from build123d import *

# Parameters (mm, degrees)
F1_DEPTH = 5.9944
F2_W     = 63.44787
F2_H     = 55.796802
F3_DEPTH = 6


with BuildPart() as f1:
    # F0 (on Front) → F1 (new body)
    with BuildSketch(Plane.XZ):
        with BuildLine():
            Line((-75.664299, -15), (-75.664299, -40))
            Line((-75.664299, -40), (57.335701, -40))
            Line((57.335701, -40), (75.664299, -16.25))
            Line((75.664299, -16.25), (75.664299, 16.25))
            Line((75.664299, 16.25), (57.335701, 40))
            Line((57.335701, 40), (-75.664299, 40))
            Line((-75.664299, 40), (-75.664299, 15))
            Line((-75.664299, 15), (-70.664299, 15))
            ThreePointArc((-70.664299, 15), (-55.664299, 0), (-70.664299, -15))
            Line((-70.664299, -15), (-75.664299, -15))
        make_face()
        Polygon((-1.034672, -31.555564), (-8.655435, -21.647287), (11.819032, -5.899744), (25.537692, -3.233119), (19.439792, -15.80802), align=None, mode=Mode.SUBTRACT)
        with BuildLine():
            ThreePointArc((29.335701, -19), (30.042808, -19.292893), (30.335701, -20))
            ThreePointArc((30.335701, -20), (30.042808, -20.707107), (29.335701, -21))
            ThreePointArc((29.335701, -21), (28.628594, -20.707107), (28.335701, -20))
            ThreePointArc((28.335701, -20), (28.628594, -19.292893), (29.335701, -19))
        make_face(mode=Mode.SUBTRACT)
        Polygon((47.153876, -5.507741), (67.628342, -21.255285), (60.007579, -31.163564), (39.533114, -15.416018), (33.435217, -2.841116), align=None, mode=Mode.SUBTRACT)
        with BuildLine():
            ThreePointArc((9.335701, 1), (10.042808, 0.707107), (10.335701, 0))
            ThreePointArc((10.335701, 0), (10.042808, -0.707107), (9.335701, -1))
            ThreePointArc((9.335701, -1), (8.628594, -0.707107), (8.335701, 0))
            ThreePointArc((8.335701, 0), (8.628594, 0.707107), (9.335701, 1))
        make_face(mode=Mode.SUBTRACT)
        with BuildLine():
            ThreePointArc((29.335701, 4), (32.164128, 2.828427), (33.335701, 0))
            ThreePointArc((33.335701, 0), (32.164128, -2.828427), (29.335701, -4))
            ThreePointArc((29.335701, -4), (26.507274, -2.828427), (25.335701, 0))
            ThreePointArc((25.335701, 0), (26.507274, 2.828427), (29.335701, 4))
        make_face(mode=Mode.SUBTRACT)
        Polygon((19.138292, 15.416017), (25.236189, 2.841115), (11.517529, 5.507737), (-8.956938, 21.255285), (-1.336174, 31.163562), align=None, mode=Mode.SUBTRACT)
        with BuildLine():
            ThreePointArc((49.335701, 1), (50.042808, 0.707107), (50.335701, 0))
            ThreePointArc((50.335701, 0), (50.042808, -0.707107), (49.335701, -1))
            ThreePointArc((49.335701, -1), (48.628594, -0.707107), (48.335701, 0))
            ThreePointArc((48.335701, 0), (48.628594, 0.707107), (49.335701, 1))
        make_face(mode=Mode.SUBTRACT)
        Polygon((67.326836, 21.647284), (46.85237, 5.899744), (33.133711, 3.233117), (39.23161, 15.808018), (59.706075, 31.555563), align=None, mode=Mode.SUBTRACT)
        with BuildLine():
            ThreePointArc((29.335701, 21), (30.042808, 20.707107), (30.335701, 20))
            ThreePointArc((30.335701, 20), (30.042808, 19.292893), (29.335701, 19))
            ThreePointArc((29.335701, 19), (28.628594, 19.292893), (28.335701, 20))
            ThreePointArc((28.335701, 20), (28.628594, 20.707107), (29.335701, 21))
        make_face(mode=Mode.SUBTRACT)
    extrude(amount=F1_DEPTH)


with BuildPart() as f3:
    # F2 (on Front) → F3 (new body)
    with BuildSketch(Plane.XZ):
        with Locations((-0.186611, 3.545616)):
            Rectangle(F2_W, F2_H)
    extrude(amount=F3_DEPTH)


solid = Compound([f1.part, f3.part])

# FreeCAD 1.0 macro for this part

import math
import FreeCAD as App
import Part
import Sketcher
from FreeCAD import Vector


def add_polygon(sketch, points):
    """Adds a closed chain of lines whose ends are joined by coincident constraints."""
    first, n = sketch.GeometryCount, len(points)
    for a, b in zip(points, points[1:] + points[:1]):
        sketch.addGeometry(Part.LineSegment(App.Vector(*a, 0), App.Vector(*b, 0)), False)
    for i in range(n):
        sketch.addConstraint(Sketcher.Constraint("Coincident", first + i, 2, first + (i + 1) % n, 1))

doc = App.newDocument("Part")
body = doc.addObject("PartDesign::Body", "Body")

# Sketch on XZ plane
sketch1 = doc.addObject("Sketcher::SketchObject", "Sketch")
body.addObject(sketch1)
sketch1.AttachmentSupport = (doc.XZ_Plane, [""])
sketch1.MapMode = "FlatFace"
sketch1.addGeometry(Part.LineSegment(Vector(-75.7, -15, 0), Vector(-75.7, -40, 0)), False)  # 0
sketch1.addGeometry(Part.LineSegment(Vector(-75.7, -40, 0), Vector(57.3, -40, 0)), False)  # 1
sketch1.addGeometry(Part.LineSegment(Vector(57.3, -40, 0), Vector(75.7, -16.2, 0)), False)  # 2
sketch1.addGeometry(Part.LineSegment(Vector(75.7, -16.2, 0), Vector(75.7, 16.2, 0)), False)  # 3
sketch1.addGeometry(Part.LineSegment(Vector(75.7, 16.2, 0), Vector(57.3, 40, 0)), False)  # 4
sketch1.addGeometry(Part.LineSegment(Vector(57.3, 40, 0), Vector(-75.7, 40, 0)), False)  # 5
sketch1.addGeometry(Part.LineSegment(Vector(-75.7, 40, 0), Vector(-75.7, 15, 0)), False)  # 6
sketch1.addGeometry(Part.LineSegment(Vector(-75.7, 15, 0), Vector(-70.7, 15, 0)), False)  # 7
sketch1.addGeometry(Part.ArcOfCircle(Part.Circle(Vector(-70.7, 0, 0), Vector(0, 0, 1), 15), math.radians(-90), math.radians(90)), False)  # 8
sketch1.addGeometry(Part.LineSegment(Vector(-70.7, -15, 0), Vector(-75.7, -15, 0)), False)  # 9
add_polygon(sketch1, [(19.4, -15.8), (-1, -31.6), (-8.7, -21.6), (11.8, -5.9), (25.5, -3.2)])  # lines 10-14
sketch1.addGeometry(Part.ArcOfCircle(Part.Circle(Vector(29.3, -20, 0), Vector(0, 0, 1), 1), math.radians(90), math.radians(180)), False)  # 15
sketch1.addGeometry(Part.ArcOfCircle(Part.Circle(Vector(29.3, -20, 0), Vector(0, 0, 1), 1), math.radians(0), math.radians(90)), False)  # 16
sketch1.addGeometry(Part.ArcOfCircle(Part.Circle(Vector(29.3, -20, 0), Vector(0, 0, 1), 1), math.radians(-90), math.radians(0)), False)  # 17
sketch1.addGeometry(Part.ArcOfCircle(Part.Circle(Vector(29.3, -20, 0), Vector(0, 0, 1), 1), math.radians(180), math.radians(270)), False)  # 18
add_polygon(sketch1, [(33.4, -2.8), (47.2, -5.5), (67.6, -21.3), (60, -31.2), (39.5, -15.4)])  # lines 19-23
sketch1.addGeometry(Part.ArcOfCircle(Part.Circle(Vector(9.3, 0, 0), Vector(0, 0, 1), 1), math.radians(90), math.radians(180)), False)  # 24
sketch1.addGeometry(Part.ArcOfCircle(Part.Circle(Vector(9.3, 0, 0), Vector(0, 0, 1), 1), math.radians(0), math.radians(90)), False)  # 25
sketch1.addGeometry(Part.ArcOfCircle(Part.Circle(Vector(9.3, 0, 0), Vector(0, 0, 1), 1), math.radians(-90), math.radians(0)), False)  # 26
sketch1.addGeometry(Part.ArcOfCircle(Part.Circle(Vector(9.3, 0, 0), Vector(0, 0, 1), 1), math.radians(180), math.radians(270)), False)  # 27
sketch1.addGeometry(Part.ArcOfCircle(Part.Circle(Vector(29.3, 0, 0), Vector(0, 0, 1), 4), math.radians(90), math.radians(180)), False)  # 28
sketch1.addGeometry(Part.ArcOfCircle(Part.Circle(Vector(29.3, 0, 0), Vector(0, 0, 1), 4), math.radians(0), math.radians(90)), False)  # 29
sketch1.addGeometry(Part.ArcOfCircle(Part.Circle(Vector(29.3, 0, 0), Vector(0, 0, 1), 4), math.radians(-90), math.radians(0)), False)  # 30
sketch1.addGeometry(Part.ArcOfCircle(Part.Circle(Vector(29.3, 0, 0), Vector(0, 0, 1), 4), math.radians(-180), math.radians(-90)), False)  # 31
add_polygon(sketch1, [(-1.3, 31.2), (19.1, 15.4), (25.2, 2.8), (11.5, 5.5), (-9, 21.3)])  # lines 32-36
sketch1.addGeometry(Part.ArcOfCircle(Part.Circle(Vector(29.3, 20, 0), Vector(0, 0, 1), 1), math.radians(90), math.radians(180)), False)  # 37
sketch1.addGeometry(Part.ArcOfCircle(Part.Circle(Vector(29.3, 20, 0), Vector(0, 0, 1), 1), math.radians(0), math.radians(90)), False)  # 38
sketch1.addGeometry(Part.ArcOfCircle(Part.Circle(Vector(29.3, 20, 0), Vector(0, 0, 1), 1), math.radians(-90), math.radians(0)), False)  # 39
sketch1.addGeometry(Part.ArcOfCircle(Part.Circle(Vector(29.3, 20, 0), Vector(0, 0, 1), 1), math.radians(180), math.radians(270)), False)  # 40
sketch1.addGeometry(Part.ArcOfCircle(Part.Circle(Vector(49.3, 0, 0), Vector(0, 0, 1), 1), math.radians(90), math.radians(180)), False)  # 41
sketch1.addGeometry(Part.ArcOfCircle(Part.Circle(Vector(49.3, 0, 0), Vector(0, 0, 1), 1), math.radians(0), math.radians(90)), False)  # 42
sketch1.addGeometry(Part.ArcOfCircle(Part.Circle(Vector(49.3, 0, 0), Vector(0, 0, 1), 1), math.radians(-90), math.radians(0)), False)  # 43
sketch1.addGeometry(Part.ArcOfCircle(Part.Circle(Vector(49.3, 0, 0), Vector(0, 0, 1), 1), math.radians(180), math.radians(270)), False)  # 44
add_polygon(sketch1, [(59.7, 31.6), (67.3, 21.6), (46.9, 5.9), (33.1, 3.2), (39.2, 15.8)])  # lines 45-49
sketch1.addConstraint([
    Sketcher.Constraint("Coincident", 0, 2, 1, 1),
    Sketcher.Constraint("Coincident", 1, 2, 2, 1),
    Sketcher.Constraint("Coincident", 2, 2, 3, 1),
    Sketcher.Constraint("Coincident", 3, 2, 4, 1),
    Sketcher.Constraint("Coincident", 4, 2, 5, 1),
    Sketcher.Constraint("Coincident", 5, 2, 6, 1),
    Sketcher.Constraint("Coincident", 6, 2, 7, 1),
    Sketcher.Constraint("Tangent", 7, 2, 8, 2),
    Sketcher.Constraint("Tangent", 8, 1, 9, 1),
    Sketcher.Constraint("Coincident", 9, 2, 0, 1),
    Sketcher.Constraint("Tangent", 15, 1, 16, 2),
    Sketcher.Constraint("Tangent", 16, 1, 17, 2),
    Sketcher.Constraint("Tangent", 17, 1, 18, 2),
    Sketcher.Constraint("Tangent", 18, 1, 15, 2),
    Sketcher.Constraint("Tangent", 24, 1, 25, 2),
    Sketcher.Constraint("Tangent", 25, 1, 26, 2),
    Sketcher.Constraint("Tangent", 26, 1, 27, 2),
    Sketcher.Constraint("Tangent", 27, 1, 24, 2),
    Sketcher.Constraint("Tangent", 28, 1, 29, 2),
    Sketcher.Constraint("Tangent", 29, 1, 30, 2),
    Sketcher.Constraint("Tangent", 30, 1, 31, 2),
    Sketcher.Constraint("Tangent", 31, 1, 28, 2),
    Sketcher.Constraint("Tangent", 37, 1, 38, 2),
    Sketcher.Constraint("Tangent", 38, 1, 39, 2),
    Sketcher.Constraint("Tangent", 39, 1, 40, 2),
    Sketcher.Constraint("Tangent", 40, 1, 37, 2),
    Sketcher.Constraint("Tangent", 41, 1, 42, 2),
    Sketcher.Constraint("Tangent", 42, 1, 43, 2),
    Sketcher.Constraint("Tangent", 43, 1, 44, 2),
    Sketcher.Constraint("Tangent", 44, 1, 41, 2),
    Sketcher.Constraint("Vertical", 0),
    Sketcher.Constraint("Horizontal", 1),
    Sketcher.Constraint("Vertical", 3),
    Sketcher.Constraint("Horizontal", 5),
    Sketcher.Constraint("Vertical", 6),
    Sketcher.Constraint("Horizontal", 7),
    Sketcher.Constraint("Horizontal", 9),
    Sketcher.Constraint("Equal", 15, 16),
    Sketcher.Constraint("Equal", 18, 24),
    Sketcher.Constraint("Equal", 24, 25),
    Sketcher.Constraint("Equal", 28, 29),
    Sketcher.Constraint("Equal", 27, 37),
    Sketcher.Constraint("Equal", 37, 38),
    Sketcher.Constraint("Equal", 40, 41),
    Sketcher.Constraint("Equal", 41, 42),
    Sketcher.Constraint("Symmetric", 15, 3, 37, 3, -1),
    Sketcher.Constraint("Symmetric", 1, 2, 4, 2, -1),
    Sketcher.Constraint("Symmetric", 6, 2, 9, 2, -1),
    Sketcher.Constraint("Symmetric", 24, 1, 26, 1, -1),
    Sketcher.Constraint("Symmetric", 28, 1, 30, 1, -1),
    Sketcher.Constraint("Symmetric", 41, 1, 43, 1, -1),
    Sketcher.Constraint("PointOnObject", 25, 1, -1),
    Sketcher.Constraint("PointOnObject", 27, 1, -1),
    Sketcher.Constraint("PointOnObject", 29, 1, -1),
    Sketcher.Constraint("PointOnObject", 31, 1, -1),
    Sketcher.Constraint("PointOnObject", 42, 1, -1),
    Sketcher.Constraint("PointOnObject", 44, 1, -1),
    Sketcher.Constraint("Perpendicular", 10, 11),
    Sketcher.Constraint("Perpendicular", 11, 12),
    Sketcher.Constraint("Perpendicular", 20, 21),
    Sketcher.Constraint("Perpendicular", 21, 22),
    Sketcher.Constraint("Parallel", 22, 32),
    Sketcher.Constraint("Parallel", 23, 33),
    Sketcher.Constraint("Parallel", 19, 34),
    Sketcher.Constraint("Parallel", 32, 35),
    Sketcher.Constraint("Perpendicular", 35, 36),
    Sketcher.Constraint("Perpendicular", 12, 45),
    Sketcher.Constraint("Perpendicular", 45, 46),
    Sketcher.Constraint("Parallel", 13, 47),
    Sketcher.Constraint("Parallel", 14, 48),
    Sketcher.Constraint("Parallel", 46, 49),
    Sketcher.Constraint("Horizontal", 18, 3, 16, 1),
    Sketcher.Constraint("Horizontal", 16, 1, 18, 1),
    Sketcher.Constraint("Horizontal", 40, 3, 38, 1),
    Sketcher.Constraint("Horizontal", 38, 1, 40, 1),
    Sketcher.Constraint("Vertical", 18, 3, 28, 3),
    Sketcher.Constraint("Vertical", 40, 3, 15, 1),
    Sketcher.Constraint("Vertical", 15, 1, 17, 1),
    Sketcher.Constraint("Vertical", 27, 3, 24, 1),
    Sketcher.Constraint("Vertical", 17, 1, 28, 1),
    Sketcher.Constraint("Vertical", 30, 1, 37, 1),
    Sketcher.Constraint("Vertical", 37, 1, 39, 1),
    Sketcher.Constraint("Vertical", 44, 3, 41, 1),
    Sketcher.Constraint("Equal", 2, 4),
    Sketcher.Constraint("Equal", 10, 12),
    Sketcher.Constraint("Equal", 13, 14),
    Sketcher.Constraint("Equal", 14, 19),
    Sketcher.Constraint("Equal", 12, 20),
    Sketcher.Constraint("Equal", 11, 21),
    Sketcher.Constraint("Equal", 20, 22),
    Sketcher.Constraint("Equal", 19, 23),
    Sketcher.Constraint("Equal", 22, 32),
    Sketcher.Constraint("Equal", 23, 33),
    Sketcher.Constraint("Equal", 33, 34),
    Sketcher.Constraint("Equal", 36, 45),
    Sketcher.Constraint("Equal", 10, 46),
    Sketcher.Constraint("Equal", 34, 47),
    Sketcher.Constraint("Radius", 8, 15.0),
    Sketcher.Constraint("Radius", 15, 0.999999),
    Sketcher.Constraint("Radius", 28, 4.0),
    Sketcher.Constraint("DistanceX", 1, 1, 1, 2, 133.0),
    Sketcher.Constraint("DistanceX", 7, 1, 7, 2, 5.0),
    Sketcher.Constraint("DistanceY", 0, 2, 0, 1, 25.0),
    Sketcher.Constraint("Distance", 2, 30.0),
    Sketcher.Constraint("DistanceY", 3, 1, 3, 2, 32.5),
    Sketcher.Constraint("DistanceY", 15, 3, -1, 1, 19.999999),
    Sketcher.Constraint("Distance", 11, 12.499999),
    Sketcher.Constraint("Distance", 10, 25.829998),
    Sketcher.Constraint("DistanceX", 8, 3, -1, 1, 70.664299),
    Sketcher.Constraint("DistanceX", -1, 1, 15, 3, 29.3357),
    Sketcher.Constraint("DistanceX", -1, 1, 24, 3, 9.3357),
    Sketcher.Constraint("DistanceX", -1, 1, 41, 3, 49.3357),
    Sketcher.Constraint("DistanceX", -1, 1, 13, 2, 25.537692),
    Sketcher.Constraint("DistanceY", 13, 2, -1, 1, 3.233119),
    Sketcher.Constraint("DistanceY", 14, 2, -1, 1, 15.80802),
    Sketcher.Constraint("DistanceY", 19, 2, -1, 1, 5.507741),
    Sketcher.Constraint("DistanceX", -1, 1, 21, 2, 60.007579),
    Sketcher.Constraint("DistanceX", -1, 1, 32, 2, 19.138292),
    Sketcher.Constraint("DistanceX", -1, 1, 33, 2, 25.236189),
    Sketcher.Constraint("DistanceX", -1, 1, 34, 2, 11.517529),
    Sketcher.Constraint("DistanceY", -1, 1, 36, 2, 31.163562),
    Sketcher.Constraint("DistanceX", -1, 1, 46, 2, 46.85237),
    Sketcher.Constraint("DistanceY", -1, 1, 45, 2, 21.647284),
])
pad1 = doc.addObject("PartDesign::Pad", "Pad")
body.addObject(pad1)
pad1.Profile = sketch1
pad1.Length = 5.9944
body2 = doc.addObject("PartDesign::Body", "Body001")

# Sketch on XZ plane
sketch2 = doc.addObject("Sketcher::SketchObject", "Sketch001")
body2.addObject(sketch2)
sketch2.AttachmentSupport = (doc.getObject("XZ_Plane001"), [""])
sketch2.MapMode = "FlatFace"
add_polygon(sketch2, [(-32, 31), (-32, -24), (32, -24), (32, 31)])  # lines 0-3
sketch2.addConstraint([
    Sketcher.Constraint("Vertical", 0),
    Sketcher.Constraint("Horizontal", 1),
    Sketcher.Constraint("Vertical", 2),
    Sketcher.Constraint("Horizontal", 3),
    Sketcher.Constraint("DistanceX", 1, 1, 1, 2, 63.44787),
    Sketcher.Constraint("DistanceY", 0, 2, 0, 1, 55.796802),
    Sketcher.Constraint("DistanceX", 0, 2, -1, 1, 31.910546),
    Sketcher.Constraint("DistanceY", 0, 2, -1, 1, 24.352785),
])
pad2 = doc.addObject("PartDesign::Pad", "Pad001")
body2.addObject(pad2)
pad2.Profile = sketch2
pad2.Length = 6

doc.recompute()
